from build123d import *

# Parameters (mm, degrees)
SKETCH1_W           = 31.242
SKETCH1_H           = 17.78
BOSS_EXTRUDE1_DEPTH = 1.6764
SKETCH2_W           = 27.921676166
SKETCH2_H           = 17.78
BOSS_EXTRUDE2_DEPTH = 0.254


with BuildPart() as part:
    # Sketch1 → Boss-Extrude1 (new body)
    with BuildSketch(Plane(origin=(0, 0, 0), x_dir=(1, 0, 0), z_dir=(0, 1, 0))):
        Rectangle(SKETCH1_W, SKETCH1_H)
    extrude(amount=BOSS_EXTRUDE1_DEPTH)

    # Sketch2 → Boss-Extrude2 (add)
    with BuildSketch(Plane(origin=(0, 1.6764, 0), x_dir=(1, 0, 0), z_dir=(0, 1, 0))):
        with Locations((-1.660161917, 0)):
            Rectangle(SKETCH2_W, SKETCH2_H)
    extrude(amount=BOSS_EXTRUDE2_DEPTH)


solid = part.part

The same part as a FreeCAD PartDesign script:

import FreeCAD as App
import Part
import Sketcher
Q = App.Units.Quantity

doc = App.newDocument("Part")
body = doc.addObject("PartDesign::Body", "Body")

sketch1 = body.newObject("Sketcher::SketchObject", "Sketch")
sketch1.AttachmentSupport = (doc.getObject("XZ_Plane"), [""])
sketch1.MapMode = "FlatFace"
sketch1.addGeometry([
    Part.LineSegment(App.Vector(-16, -9, 0), App.Vector(-16, 9, 0)),
    Part.LineSegment(App.Vector(-16, 9, 0), App.Vector(16, 9, 0)),
    Part.LineSegment(App.Vector(16, 9, 0), App.Vector(16, -9, 0)),
    Part.LineSegment(App.Vector(16, -9, 0), App.Vector(-16, -9, 0)),
], False)
sketch1.addConstraint([
    Sketcher.Constraint("Coincident", 0, 2, 1, 1),
    Sketcher.Constraint("Coincident", 1, 2, 2, 1),
    Sketcher.Constraint("Coincident", 2, 2, 3, 1),
    Sketcher.Constraint("Coincident", 3, 2, 0, 1),
    Sketcher.Constraint("Vertical", 0),
    Sketcher.Constraint("Horizontal", 1),
    Sketcher.Constraint("Vertical", 2),
    Sketcher.Constraint("Horizontal", 3),
    Sketcher.Constraint("Symmetric", 0, 2, 2, 2, -1, 1),
    Sketcher.Constraint("DistanceY", 0, 1, 0, 2, Q("0.7 in")),
    Sketcher.Constraint("DistanceX", 1, 1, 1, 2, Q("1.23 in")),
])
pad1 = body.newObject("PartDesign::Pad", "Pad")
pad1.Profile = sketch1
pad1.Length = Q("0.066 in")
pad1.Reversed = True

sketch2 = body.newObject("Sketcher::SketchObject", "Sketch001")
sketch2.AttachmentSupport = (doc.getObject("XZ_Plane"), [""])
sketch2.MapMode = "FlatFace"
sketch2.AttachmentOffset = App.Placement(App.Vector(0, 0, -0.066 * 25.4), App.Rotation())
sketch2.addGeometry([
    Part.LineSegment(App.Vector(-16, -9, 0), App.Vector(-16, 9, 0)),
    Part.LineSegment(App.Vector(-16, 9, 0), App.Vector(12, 9, 0)),
    Part.LineSegment(App.Vector(12, 9, 0), App.Vector(12, -9, 0)),
    Part.LineSegment(App.Vector(12, -9, 0), App.Vector(-16, -9, 0)),
], False)
sketch2.addConstraint([
    Sketcher.Constraint("Coincident", 0, 2, 1, 1),
    Sketcher.Constraint("Coincident", 1, 2, 2, 1),
    Sketcher.Constraint("Coincident", 2, 2, 3, 1),
    Sketcher.Constraint("Coincident", 3, 2, 0, 1),
    Sketcher.Constraint("Vertical", 0),
    Sketcher.Constraint("Horizontal", 1),
    Sketcher.Constraint("Vertical", 2),
    Sketcher.Constraint("Horizontal", 3),
    Sketcher.Constraint("DistanceY", 0, 1, 0, 2, Q("0.7 in")),
    Sketcher.Constraint("DistanceY", -1, 1, 0, 2, Q("0.35 in")),
    Sketcher.Constraint("DistanceX", 0, 2, -1, 1, Q("0.615 in")),
    Sketcher.Constraint("DistanceX", 1, 1, 1, 2, 27.921676),
])
pad2 = body.newObject("PartDesign::Pad", "Pad001")
pad2.Profile = sketch2
pad2.Length = Q("0.01 in")
pad2.Reversed = True

doc.recompute()
